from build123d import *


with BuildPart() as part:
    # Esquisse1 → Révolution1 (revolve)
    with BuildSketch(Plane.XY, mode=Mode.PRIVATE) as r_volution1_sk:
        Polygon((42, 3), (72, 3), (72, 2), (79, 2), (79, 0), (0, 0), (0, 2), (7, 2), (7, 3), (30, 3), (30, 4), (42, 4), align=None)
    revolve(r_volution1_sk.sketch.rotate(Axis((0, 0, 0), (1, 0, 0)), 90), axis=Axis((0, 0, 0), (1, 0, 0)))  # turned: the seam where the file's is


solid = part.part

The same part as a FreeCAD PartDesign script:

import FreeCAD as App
import Part
import Sketcher


def add_polygon(sketch, points):
    """Adds a closed chain of lines whose ends are joined by coincident constraints."""
    first, n = sketch.GeometryCount, len(points)
    for a, b in zip(points, points[1:] + points[:1]):
        sketch.addGeometry(Part.LineSegment(App.Vector(*a, 0), App.Vector(*b, 0)), False)
    for i in range(n):
        sketch.addConstraint(Sketcher.Constraint("Coincident", first + i, 2, first + (i + 1) % n, 1))

doc = App.newDocument("Part")
body = doc.addObject("PartDesign::Body", "Body")

sketch1 = doc.addObject("Sketcher::SketchObject", "Sketch")
body.addObject(sketch1)
sketch1.AttachmentSupport = (doc.XY_Plane, [""])
sketch1.MapMode = "FlatFace"
add_polygon(sketch1, [(72, 3), (42, 3), (42, 4), (30, 4), (30, 3), (7, 3), (7, 2), (0, 2), (0, 0), (79, 0), (79, 2), (72, 2)])
sketch1.addConstraint([
    Sketcher.Constraint("Horizontal", 0),
    Sketcher.Constraint("Vertical", 1),
    Sketcher.Constraint("Horizontal", 2),
    Sketcher.Constraint("Vertical", 3),
    Sketcher.Constraint("Horizontal", 4),
    Sketcher.Constraint("Vertical", 5),
    Sketcher.Constraint("Horizontal", 6),
    Sketcher.Constraint("Vertical", 7),
    Sketcher.Constraint("Horizontal", 8),
    Sketcher.Constraint("Vertical", 9),
    Sketcher.Constraint("Horizontal", 10),
    Sketcher.Constraint("Vertical", 11),
    Sketcher.Constraint("Coincident", 7, 2, -1, 1),
    Sketcher.Constraint("Horizontal", 0, 2, 3, 2),
    Sketcher.Constraint("Horizontal", 6, 2, 9, 2),
    Sketcher.Constraint("Equal", 6, 10),
    Sketcher.Constraint("Equal", 3, 5),
    Sketcher.Constraint("DistanceX", 0, 2, 0, 1, 30.0),
    Sketcher.Constraint("DistanceX", 2, 2, 2, 1, 12.0),
    Sketcher.Constraint("DistanceX", 4, 2, 4, 1, 23.0),
    Sketcher.Constraint("DistanceX", 6, 2, 6, 1, 7.0),
    Sketcher.Constraint("DistanceY", 1, 1, 1, 2, 1.0),
    Sketcher.Constraint("DistanceY", 7, 2, 7, 1, 2.0),
])
revolution = doc.addObject("PartDesign::Revolution", "Revolution")
body.addObject(revolution)
revolution.Profile = sketch1
revolution.ReferenceAxis = (sketch1, ["H_Axis"])
revolution.Angle = 360

doc.recompute()
